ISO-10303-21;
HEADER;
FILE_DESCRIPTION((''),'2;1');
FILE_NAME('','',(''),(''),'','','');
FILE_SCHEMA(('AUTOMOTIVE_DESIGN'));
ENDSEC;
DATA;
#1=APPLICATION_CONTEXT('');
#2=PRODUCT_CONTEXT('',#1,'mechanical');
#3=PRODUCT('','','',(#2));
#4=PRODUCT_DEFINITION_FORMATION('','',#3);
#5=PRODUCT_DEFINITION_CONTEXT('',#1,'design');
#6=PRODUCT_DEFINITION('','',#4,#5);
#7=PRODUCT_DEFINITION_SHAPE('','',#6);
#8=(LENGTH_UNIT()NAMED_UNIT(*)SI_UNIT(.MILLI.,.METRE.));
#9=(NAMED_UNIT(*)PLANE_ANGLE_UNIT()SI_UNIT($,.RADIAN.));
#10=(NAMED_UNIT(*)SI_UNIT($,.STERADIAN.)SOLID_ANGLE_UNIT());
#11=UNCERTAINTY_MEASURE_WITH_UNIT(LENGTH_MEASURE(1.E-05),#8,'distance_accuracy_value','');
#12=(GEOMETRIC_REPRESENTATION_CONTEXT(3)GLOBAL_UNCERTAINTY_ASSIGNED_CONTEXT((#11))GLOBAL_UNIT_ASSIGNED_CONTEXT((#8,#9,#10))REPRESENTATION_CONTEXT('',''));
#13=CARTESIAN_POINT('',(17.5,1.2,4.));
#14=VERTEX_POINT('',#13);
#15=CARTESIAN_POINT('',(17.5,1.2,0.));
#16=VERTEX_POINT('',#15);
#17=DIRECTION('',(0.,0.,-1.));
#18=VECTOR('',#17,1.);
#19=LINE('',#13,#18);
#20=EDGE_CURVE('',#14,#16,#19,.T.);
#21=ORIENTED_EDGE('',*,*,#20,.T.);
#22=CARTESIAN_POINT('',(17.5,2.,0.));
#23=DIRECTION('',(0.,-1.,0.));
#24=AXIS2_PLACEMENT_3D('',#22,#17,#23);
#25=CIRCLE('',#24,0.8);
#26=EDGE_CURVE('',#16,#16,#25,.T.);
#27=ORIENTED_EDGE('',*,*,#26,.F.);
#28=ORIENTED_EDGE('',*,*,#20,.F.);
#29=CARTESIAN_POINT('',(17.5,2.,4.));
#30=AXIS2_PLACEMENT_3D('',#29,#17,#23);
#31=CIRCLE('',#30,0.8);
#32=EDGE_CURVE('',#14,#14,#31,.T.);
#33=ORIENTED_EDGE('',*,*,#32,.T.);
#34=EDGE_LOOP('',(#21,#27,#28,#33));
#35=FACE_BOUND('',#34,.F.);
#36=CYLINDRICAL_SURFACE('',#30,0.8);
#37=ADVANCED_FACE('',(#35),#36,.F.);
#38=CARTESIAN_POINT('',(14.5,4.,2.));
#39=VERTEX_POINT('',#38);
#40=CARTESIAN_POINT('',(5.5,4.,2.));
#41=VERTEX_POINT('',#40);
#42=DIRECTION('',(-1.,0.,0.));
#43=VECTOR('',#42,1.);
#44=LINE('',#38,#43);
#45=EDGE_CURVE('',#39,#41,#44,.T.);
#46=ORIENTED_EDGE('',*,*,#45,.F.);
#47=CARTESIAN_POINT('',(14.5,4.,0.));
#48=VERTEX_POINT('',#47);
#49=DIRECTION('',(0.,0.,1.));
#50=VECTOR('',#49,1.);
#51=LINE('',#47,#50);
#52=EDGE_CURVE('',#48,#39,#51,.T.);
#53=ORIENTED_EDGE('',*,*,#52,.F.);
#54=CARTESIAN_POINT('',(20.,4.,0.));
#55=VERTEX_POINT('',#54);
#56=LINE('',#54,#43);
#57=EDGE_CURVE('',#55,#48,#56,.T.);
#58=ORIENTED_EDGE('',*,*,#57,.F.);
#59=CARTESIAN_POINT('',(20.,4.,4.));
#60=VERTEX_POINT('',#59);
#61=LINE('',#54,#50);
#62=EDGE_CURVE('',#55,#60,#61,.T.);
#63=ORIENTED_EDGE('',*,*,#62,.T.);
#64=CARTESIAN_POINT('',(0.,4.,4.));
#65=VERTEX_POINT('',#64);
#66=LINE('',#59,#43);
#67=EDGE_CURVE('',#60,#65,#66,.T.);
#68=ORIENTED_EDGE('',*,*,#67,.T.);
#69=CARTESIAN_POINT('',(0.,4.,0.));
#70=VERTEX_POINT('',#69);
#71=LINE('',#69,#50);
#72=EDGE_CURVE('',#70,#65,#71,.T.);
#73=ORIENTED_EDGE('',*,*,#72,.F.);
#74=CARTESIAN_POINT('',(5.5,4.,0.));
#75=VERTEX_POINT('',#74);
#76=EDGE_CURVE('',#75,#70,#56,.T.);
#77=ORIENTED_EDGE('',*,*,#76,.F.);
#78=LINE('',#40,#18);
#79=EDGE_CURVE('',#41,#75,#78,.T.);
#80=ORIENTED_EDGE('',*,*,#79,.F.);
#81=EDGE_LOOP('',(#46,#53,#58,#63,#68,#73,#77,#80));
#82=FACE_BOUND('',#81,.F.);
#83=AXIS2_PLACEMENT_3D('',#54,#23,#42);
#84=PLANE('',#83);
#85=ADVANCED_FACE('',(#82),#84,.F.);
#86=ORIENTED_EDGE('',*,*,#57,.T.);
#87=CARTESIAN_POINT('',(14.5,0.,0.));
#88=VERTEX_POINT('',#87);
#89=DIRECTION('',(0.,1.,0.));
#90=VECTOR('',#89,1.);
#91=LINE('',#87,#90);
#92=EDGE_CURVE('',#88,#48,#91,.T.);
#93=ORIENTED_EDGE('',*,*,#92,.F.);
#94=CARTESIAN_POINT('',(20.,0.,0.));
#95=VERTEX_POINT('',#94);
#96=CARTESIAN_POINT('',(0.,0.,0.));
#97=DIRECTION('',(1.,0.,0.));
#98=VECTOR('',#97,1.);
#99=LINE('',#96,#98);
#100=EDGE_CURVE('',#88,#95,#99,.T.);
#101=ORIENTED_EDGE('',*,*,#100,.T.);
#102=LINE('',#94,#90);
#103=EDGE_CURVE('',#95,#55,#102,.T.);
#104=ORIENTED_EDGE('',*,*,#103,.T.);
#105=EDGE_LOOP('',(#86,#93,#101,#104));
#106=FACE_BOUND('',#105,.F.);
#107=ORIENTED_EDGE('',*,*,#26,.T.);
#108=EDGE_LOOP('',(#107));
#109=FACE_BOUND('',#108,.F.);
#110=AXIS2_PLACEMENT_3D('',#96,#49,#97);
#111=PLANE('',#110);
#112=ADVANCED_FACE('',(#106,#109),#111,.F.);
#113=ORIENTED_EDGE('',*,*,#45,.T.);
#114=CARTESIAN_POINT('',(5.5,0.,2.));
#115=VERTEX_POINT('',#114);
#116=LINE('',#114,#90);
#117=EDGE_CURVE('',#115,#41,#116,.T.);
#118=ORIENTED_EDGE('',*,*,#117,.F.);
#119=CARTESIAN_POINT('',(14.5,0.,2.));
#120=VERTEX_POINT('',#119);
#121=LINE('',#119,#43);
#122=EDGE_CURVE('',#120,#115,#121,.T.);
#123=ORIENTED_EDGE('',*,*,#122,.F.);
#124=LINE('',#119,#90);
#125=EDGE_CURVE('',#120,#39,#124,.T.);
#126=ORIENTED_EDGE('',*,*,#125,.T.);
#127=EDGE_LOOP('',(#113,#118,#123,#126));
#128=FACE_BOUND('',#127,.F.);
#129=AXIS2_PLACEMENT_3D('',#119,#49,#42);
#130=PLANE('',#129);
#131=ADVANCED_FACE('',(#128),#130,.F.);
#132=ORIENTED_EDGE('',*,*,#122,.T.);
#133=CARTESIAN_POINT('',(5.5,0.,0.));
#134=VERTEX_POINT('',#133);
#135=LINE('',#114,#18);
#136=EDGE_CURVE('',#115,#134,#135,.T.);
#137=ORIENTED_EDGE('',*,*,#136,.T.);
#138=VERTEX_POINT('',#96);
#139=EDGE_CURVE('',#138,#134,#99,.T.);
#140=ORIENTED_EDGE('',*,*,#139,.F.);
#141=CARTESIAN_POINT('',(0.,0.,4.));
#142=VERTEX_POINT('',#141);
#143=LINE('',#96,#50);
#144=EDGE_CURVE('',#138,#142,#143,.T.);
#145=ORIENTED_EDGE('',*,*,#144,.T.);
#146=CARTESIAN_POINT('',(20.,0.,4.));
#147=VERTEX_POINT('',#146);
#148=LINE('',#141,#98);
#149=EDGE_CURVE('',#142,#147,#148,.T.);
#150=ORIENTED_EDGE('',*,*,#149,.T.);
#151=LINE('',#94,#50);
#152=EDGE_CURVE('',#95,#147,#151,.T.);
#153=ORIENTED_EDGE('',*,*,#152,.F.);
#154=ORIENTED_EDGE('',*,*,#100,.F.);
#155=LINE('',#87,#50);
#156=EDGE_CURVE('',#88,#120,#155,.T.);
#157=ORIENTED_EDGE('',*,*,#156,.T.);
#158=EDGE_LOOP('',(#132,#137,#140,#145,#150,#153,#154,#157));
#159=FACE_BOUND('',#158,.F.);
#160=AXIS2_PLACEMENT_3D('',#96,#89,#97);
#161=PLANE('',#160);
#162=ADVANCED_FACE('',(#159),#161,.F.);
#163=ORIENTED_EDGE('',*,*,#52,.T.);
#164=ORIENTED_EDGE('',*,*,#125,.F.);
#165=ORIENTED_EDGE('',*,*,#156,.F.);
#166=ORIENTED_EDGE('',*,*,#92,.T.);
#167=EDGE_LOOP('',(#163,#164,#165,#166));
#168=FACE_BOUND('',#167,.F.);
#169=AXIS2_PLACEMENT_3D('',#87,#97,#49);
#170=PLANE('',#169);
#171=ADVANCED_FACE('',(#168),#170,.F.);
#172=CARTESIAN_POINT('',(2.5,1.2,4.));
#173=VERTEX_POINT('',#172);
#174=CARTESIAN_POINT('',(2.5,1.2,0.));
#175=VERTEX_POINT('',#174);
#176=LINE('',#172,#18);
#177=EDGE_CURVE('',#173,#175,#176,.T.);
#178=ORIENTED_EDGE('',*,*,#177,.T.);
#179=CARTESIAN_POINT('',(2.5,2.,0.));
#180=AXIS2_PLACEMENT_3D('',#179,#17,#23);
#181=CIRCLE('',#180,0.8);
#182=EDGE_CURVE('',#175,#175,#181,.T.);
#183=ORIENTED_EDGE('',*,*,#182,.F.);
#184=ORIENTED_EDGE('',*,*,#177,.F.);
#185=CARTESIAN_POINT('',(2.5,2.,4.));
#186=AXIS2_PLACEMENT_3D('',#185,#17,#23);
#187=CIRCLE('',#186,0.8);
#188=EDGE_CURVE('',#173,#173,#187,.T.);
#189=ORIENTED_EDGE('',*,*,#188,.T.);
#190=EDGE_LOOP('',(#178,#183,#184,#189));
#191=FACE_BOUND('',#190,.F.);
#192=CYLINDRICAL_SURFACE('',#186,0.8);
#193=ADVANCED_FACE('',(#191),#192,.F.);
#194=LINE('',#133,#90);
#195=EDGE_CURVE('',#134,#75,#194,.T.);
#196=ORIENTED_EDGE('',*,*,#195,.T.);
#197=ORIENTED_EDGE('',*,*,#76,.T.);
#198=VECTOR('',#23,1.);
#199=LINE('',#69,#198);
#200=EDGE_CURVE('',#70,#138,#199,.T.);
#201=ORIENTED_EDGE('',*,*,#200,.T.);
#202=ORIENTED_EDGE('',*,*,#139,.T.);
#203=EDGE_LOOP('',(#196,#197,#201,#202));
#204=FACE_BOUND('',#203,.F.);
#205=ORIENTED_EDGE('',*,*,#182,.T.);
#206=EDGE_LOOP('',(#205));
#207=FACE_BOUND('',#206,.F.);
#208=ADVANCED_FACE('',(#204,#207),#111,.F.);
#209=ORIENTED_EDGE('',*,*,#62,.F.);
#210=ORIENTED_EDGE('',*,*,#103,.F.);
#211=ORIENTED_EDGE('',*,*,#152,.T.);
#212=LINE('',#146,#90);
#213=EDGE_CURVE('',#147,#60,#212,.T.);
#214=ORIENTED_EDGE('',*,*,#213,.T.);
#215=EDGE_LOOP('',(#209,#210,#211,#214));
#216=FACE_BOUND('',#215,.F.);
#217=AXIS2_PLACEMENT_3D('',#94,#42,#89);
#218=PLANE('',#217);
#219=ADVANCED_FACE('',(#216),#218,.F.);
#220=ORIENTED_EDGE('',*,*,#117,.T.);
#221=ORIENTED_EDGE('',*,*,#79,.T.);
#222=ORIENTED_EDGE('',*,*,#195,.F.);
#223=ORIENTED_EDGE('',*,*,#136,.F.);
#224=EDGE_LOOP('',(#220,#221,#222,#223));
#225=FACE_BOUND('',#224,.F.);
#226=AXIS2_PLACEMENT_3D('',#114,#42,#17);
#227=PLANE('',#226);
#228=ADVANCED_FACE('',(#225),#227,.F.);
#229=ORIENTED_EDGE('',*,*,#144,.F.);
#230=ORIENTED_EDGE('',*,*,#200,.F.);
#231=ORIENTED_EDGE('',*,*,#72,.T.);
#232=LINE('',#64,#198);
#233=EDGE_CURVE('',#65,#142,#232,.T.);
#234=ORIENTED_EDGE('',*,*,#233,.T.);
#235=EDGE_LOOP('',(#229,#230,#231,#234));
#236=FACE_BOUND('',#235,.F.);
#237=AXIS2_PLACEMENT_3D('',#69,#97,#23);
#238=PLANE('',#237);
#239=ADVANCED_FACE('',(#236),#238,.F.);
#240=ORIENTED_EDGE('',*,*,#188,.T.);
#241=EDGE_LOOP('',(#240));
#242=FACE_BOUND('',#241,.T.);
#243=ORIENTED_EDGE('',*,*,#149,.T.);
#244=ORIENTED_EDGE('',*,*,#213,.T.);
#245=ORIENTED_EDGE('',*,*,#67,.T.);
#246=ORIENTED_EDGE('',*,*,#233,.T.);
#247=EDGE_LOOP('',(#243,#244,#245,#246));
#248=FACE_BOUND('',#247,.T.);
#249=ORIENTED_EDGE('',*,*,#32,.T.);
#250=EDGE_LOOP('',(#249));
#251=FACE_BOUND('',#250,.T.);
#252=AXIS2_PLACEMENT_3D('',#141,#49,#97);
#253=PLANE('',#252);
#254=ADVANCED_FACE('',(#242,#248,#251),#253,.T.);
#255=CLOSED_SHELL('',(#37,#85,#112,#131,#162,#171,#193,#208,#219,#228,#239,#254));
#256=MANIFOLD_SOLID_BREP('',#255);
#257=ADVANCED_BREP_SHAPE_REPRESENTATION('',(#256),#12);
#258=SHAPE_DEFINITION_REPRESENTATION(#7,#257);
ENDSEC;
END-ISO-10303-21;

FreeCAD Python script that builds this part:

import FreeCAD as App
import Part
import Sketcher
from FreeCAD import Vector


def add_polygon(sketch, points):
    """Adds a closed chain of lines whose ends are joined by coincident constraints."""
    first, n = sketch.GeometryCount, len(points)
    for a, b in zip(points, points[1:] + points[:1]):
        sketch.addGeometry(Part.LineSegment(App.Vector(*a, 0), App.Vector(*b, 0)), False)
    for i in range(n):
        sketch.addConstraint(Sketcher.Constraint("Coincident", first + i, 2, first + (i + 1) % n, 1))

doc = App.newDocument("Part")
params = doc.addObject("Spreadsheet::Sheet", "Params")
for row, (alias, value) in enumerate([
    ("sketch1_width", "20 mm"),
    ("sketch1_height", "4 mm"),
    ("pad1_length", "4 mm"),
    ("sketch2_width", "9 mm"),
    ("sketch2_height", "2 mm"),
    ("pocket1_length", "4 mm"),
    ("sketch3_diameter", "1.6 mm"),
    ("hole_diameter", "1.6 mm"),
], start=1):
    params.set(f"A{row}", alias)
    params.set(f"B{row}", "=" + value)
    params.setAlias(f"B{row}", alias)

body = doc.addObject("PartDesign::Body", "Body")

sketch1 = body.newObject("Sketcher::SketchObject", "Sketch")
sketch1.AttachmentSupport = (doc.getObject("XY_Plane"), [""])
sketch1.MapMode = "FlatFace"
add_polygon(sketch1, [(0, 4), (0, 0), (20, 0), (20, 4)])
sketch1.addConstraint(Sketcher.Constraint("Vertical", 0))
sketch1.addConstraint(Sketcher.Constraint("Horizontal", 1))
sketch1.addConstraint(Sketcher.Constraint("Vertical", 2))
sketch1.addConstraint(Sketcher.Constraint("Horizontal", 3))
sketch1.addConstraint(Sketcher.Constraint("Coincident", 0, 2, -1, 1))
sketch1.addConstraint(Sketcher.Constraint("DistanceX", 1, 1, 1, 2, 20.0))
sketch1.addConstraint(Sketcher.Constraint("DistanceY", 0, 2, 0, 1, 4.0))
sketch1.setExpression("Constraints[9]", "Params.sketch1_width")
sketch1.setExpression("Constraints[10]", "Params.sketch1_height")
pad1 = body.newObject("PartDesign::Pad", "Pad")
pad1.Profile = sketch1
pad1.setExpression("Length", "Params.pad1_length")

sketch2 = body.newObject("Sketcher::SketchObject", "Sketch001")
sketch2.AttachmentSupport = (doc.getObject("XZ_Plane"), [""])
sketch2.MapMode = "FlatFace"
add_polygon(sketch2, [(5.5, 2), (5.5, 0), (14.5, 0), (14.5, 2)])
sketch2.addConstraint(Sketcher.Constraint("Vertical", 0))
sketch2.addConstraint(Sketcher.Constraint("Horizontal", 1))
sketch2.addConstraint(Sketcher.Constraint("Vertical", 2))
sketch2.addConstraint(Sketcher.Constraint("Horizontal", 3))
sketch2.addConstraint(Sketcher.Constraint("PointOnObject", 0, 2, -1))
sketch2.addConstraint(Sketcher.Constraint("DistanceX", 1, 1, 1, 2, 9.0))
sketch2.addConstraint(Sketcher.Constraint("DistanceY", 0, 2, 0, 1, 2.0))
sketch2.addConstraint(Sketcher.Constraint("DistanceX", -1, 1, 0, 2, 5.5))
sketch2.setExpression("Constraints[9]", "Params.sketch2_width")
sketch2.setExpression("Constraints[10]", "Params.sketch2_height")
pocket1 = body.newObject("PartDesign::Pocket", "Pocket")
pocket1.Profile = sketch2
pocket1.setExpression("Length", "Params.pocket1_length")

sketch3 = body.newObject("Sketcher::SketchObject", "Sketch002")
sketch3.AttachmentSupport = (doc.getObject("XY_Plane"), [""])
sketch3.MapMode = "FlatFace"
sketch3.AttachmentOffset = App.Placement(Vector(0, 0, 4), App.Rotation())
sketch3.addGeometry(Part.Circle(Vector(2.5, 2, 0), Vector(0, 0, 1), 0.8), False)
sketch3.addGeometry(Part.Circle(Vector(17.5, 2, 0), Vector(0, 0, 1), 0.8), False)
sketch3.addConstraint(Sketcher.Constraint("Equal", 0, 1))
sketch3.addConstraint(Sketcher.Constraint("Horizontal", 0, 3, 1, 3))
sketch3.addConstraint(Sketcher.Constraint("Diameter", 0, 1.6))
sketch3.addConstraint(Sketcher.Constraint("DistanceY", -1, 1, 0, 3, 2.0))
sketch3.addConstraint(Sketcher.Constraint("DistanceX", 0, 3, 1, 3, 15.0))
sketch3.addConstraint(Sketcher.Constraint("DistanceX", -1, 1, 0, 3, 2.5))
sketch3.setExpression("Constraints[2]", "Params.sketch3_diameter")
doc.recompute()
hole = body.newObject("PartDesign::Hole", "Hole")
hole.Profile = sketch3
hole.ThreadType = "None"
hole.setExpression("Diameter", "Params.hole_diameter")
hole.DepthType = "ThroughAll"

doc.recompute()
